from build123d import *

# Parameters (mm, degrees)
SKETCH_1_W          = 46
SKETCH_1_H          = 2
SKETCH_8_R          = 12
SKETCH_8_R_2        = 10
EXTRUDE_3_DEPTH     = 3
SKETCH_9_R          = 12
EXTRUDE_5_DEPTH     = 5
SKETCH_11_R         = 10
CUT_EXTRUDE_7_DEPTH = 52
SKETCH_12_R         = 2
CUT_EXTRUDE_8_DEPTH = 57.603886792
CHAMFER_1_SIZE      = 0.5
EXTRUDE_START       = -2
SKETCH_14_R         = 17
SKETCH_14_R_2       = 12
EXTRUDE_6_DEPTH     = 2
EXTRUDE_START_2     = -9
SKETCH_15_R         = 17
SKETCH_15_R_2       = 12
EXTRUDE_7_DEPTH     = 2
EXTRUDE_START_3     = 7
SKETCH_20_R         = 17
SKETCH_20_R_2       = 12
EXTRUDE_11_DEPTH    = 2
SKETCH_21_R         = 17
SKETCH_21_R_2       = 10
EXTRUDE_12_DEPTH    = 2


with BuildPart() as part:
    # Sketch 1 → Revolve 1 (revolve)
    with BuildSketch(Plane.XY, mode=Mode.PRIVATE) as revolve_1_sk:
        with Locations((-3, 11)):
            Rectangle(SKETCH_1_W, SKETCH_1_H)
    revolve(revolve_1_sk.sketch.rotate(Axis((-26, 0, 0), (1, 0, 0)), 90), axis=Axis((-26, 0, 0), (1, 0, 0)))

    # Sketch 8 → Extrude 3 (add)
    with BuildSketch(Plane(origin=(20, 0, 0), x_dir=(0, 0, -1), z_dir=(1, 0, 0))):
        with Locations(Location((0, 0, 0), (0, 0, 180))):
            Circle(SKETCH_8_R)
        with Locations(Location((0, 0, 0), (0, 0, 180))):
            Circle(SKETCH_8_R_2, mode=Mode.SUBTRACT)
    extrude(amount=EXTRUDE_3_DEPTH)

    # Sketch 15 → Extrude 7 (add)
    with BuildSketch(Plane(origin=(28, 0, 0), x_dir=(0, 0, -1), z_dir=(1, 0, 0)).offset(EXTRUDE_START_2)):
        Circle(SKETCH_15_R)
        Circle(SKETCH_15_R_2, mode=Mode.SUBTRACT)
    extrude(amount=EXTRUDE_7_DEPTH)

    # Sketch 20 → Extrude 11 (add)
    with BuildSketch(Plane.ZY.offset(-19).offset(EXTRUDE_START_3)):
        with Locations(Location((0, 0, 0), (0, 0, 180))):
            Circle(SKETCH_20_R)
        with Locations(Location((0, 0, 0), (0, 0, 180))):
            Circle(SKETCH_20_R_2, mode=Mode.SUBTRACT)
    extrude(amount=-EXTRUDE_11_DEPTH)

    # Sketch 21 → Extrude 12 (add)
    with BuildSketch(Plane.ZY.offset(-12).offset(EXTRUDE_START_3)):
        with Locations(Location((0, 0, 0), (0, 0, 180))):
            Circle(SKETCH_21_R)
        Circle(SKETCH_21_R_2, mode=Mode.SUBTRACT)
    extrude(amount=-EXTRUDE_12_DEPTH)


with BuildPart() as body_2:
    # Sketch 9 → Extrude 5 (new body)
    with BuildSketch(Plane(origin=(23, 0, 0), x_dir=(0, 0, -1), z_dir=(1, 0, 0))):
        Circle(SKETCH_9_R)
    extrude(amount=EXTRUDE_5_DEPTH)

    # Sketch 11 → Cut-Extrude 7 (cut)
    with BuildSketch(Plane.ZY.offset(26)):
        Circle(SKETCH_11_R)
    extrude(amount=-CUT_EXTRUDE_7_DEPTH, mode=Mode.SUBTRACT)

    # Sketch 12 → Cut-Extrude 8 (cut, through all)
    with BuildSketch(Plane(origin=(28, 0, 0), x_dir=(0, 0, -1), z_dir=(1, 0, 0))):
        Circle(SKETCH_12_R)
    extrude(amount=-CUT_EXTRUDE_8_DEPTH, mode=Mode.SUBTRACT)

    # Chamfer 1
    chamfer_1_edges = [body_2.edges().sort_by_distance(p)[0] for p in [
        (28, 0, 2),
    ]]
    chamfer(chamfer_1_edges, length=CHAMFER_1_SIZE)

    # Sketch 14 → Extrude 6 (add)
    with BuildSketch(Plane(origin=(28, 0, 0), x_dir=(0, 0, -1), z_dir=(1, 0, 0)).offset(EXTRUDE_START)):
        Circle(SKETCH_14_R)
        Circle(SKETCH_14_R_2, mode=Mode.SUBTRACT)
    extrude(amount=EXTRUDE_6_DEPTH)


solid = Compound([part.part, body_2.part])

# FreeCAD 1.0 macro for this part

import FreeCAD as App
import Part
import Sketcher

V = App.Vector


def edges_at(feature, points):
    """Names of the edges that pass closest to the given points."""
    edges = feature.Shape.Edges
    near = lambda p: min(range(len(edges)), key=lambda i: edges[i].distToShape(Part.Vertex(*p))[0])
    return sorted({f"Edge{near(p) + 1}" for p in points})

doc = App.newDocument("Part")
body = doc.addObject("PartDesign::Body", "Body")

sketch1 = body.newObject("Sketcher::SketchObject", "Sketch")
sketch1.AttachmentSupport = (doc.getObject("XY_Plane"), [""])
sketch1.MapMode = "FlatFace"
sketch1.addGeometry([
    Part.LineSegment(V(-26, 12, 0), V(-26, 10, 0)),
    Part.LineSegment(V(-26, 10, 0), V(20, 10, 0)),
    Part.LineSegment(V(20, 10, 0), V(20, 12, 0)),
    Part.LineSegment(V(20, 12, 0), V(-26, 12, 0)),
], False)
sketch1.addConstraint([
    Sketcher.Constraint("Coincident", 0, 2, 1, 1),
    Sketcher.Constraint("Coincident", 1, 2, 2, 1),
    Sketcher.Constraint("Coincident", 2, 2, 3, 1),
    Sketcher.Constraint("Coincident", 3, 2, 0, 1),
    Sketcher.Constraint("Vertical", 0),
    Sketcher.Constraint("Horizontal", 1),
    Sketcher.Constraint("Vertical", 2),
    Sketcher.Constraint("Horizontal", 3),
    Sketcher.Constraint("DistanceX", 1, 1, 1, 2, 46.0),
    Sketcher.Constraint("DistanceY", 0, 2, 0, 1, 2.0),
    Sketcher.Constraint("DistanceX", 0, 2, -1, 1, 26.0),
    Sketcher.Constraint("DistanceY", -1, 1, 0, 2, 10.0),
])
revolution = body.newObject("PartDesign::Revolution", "Revolution")
revolution.Profile = sketch1
revolution.ReferenceAxis = (sketch1, ["H_Axis"])
revolution.Angle = 360

sketch2 = body.newObject("Sketcher::SketchObject", "Sketch001")
sketch2.AttachmentSupport = (doc.getObject("YZ_Plane"), [""])
sketch2.MapMode = "FlatFace"
sketch2.AttachmentOffset = App.Placement(V(0, 0, 20), App.Rotation())
sketch2.addGeometry([
    Part.Circle(V(0, 0, 0), V(0, 0, 1), 12),
    Part.Circle(V(0, 0, 0), V(0, 0, 1), 10),
], False)
sketch2.addConstraint([
    Sketcher.Constraint("Coincident", 0, 3, -1, 1),
    Sketcher.Constraint("Coincident", 1, 3, -1, 1),
    Sketcher.Constraint("Diameter", 0, 24.0),
    Sketcher.Constraint("Diameter", 1, 20.0),
])
pad1 = body.newObject("PartDesign::Pad", "Pad")
pad1.Profile = sketch2
pad1.Length = 3

sketch3 = body.newObject("Sketcher::SketchObject", "Sketch002")
sketch3.AttachmentSupport = (doc.getObject("YZ_Plane"), [""])
sketch3.MapMode = "FlatFace"
sketch3.AttachmentOffset = App.Placement(V(0, 0, 19), App.Rotation())
sketch3.addGeometry([
    Part.Circle(V(0, 0, 0), V(0, 0, 1), 17),
    Part.Circle(V(0, 0, 0), V(0, 0, 1), 12),
], False)
sketch3.addConstraint([
    Sketcher.Constraint("Coincident", 0, 3, -1, 1),
    Sketcher.Constraint("Coincident", 1, 3, -1, 1),
    Sketcher.Constraint("Diameter", 0, 34.0),
    Sketcher.Constraint("Diameter", 1, 24.0),
])
pad2 = body.newObject("PartDesign::Pad", "Pad001")
pad2.Profile = sketch3
pad2.Length = 2

sketch4 = body.newObject("Sketcher::SketchObject", "Sketch003")
sketch4.AttachmentSupport = (doc.getObject("YZ_Plane"), [""])
sketch4.MapMode = "FlatFace"
sketch4.AttachmentOffset = App.Placement(V(0, 0, 12), App.Rotation())
sketch4.addGeometry([
    Part.Circle(V(0, 0, 0), V(0, 0, 1), 17),
    Part.Circle(V(0, 0, 0), V(0, 0, 1), 12),
], False)
sketch4.addConstraint([
    Sketcher.Constraint("Coincident", 0, 3, -1, 1),
    Sketcher.Constraint("Coincident", 1, 3, -1, 1),
    Sketcher.Constraint("Diameter", 0, 34.0),
    Sketcher.Constraint("Diameter", 1, 24.0),
])
pad3 = body.newObject("PartDesign::Pad", "Pad002")
pad3.Profile = sketch4
pad3.Length = 2

sketch5 = body.newObject("Sketcher::SketchObject", "Sketch004")
sketch5.AttachmentSupport = (doc.getObject("YZ_Plane"), [""])
sketch5.MapMode = "FlatFace"
sketch5.AttachmentOffset = App.Placement(V(0, 0, 5), App.Rotation())
sketch5.addGeometry([
    Part.Circle(V(0, 0, 0), V(0, 0, 1), 17),
    Part.Circle(V(0, 0, 0), V(0, 0, 1), 10),
], False)
sketch5.addConstraint([
    Sketcher.Constraint("Coincident", 0, 3, -1, 1),
    Sketcher.Constraint("Coincident", 1, 3, -1, 1),
    Sketcher.Constraint("Diameter", 0, 34.0),
    Sketcher.Constraint("Diameter", 1, 20.0),
])
pad4 = body.newObject("PartDesign::Pad", "Pad003")
pad4.Profile = sketch5
pad4.Length = 2
body2 = doc.addObject("PartDesign::Body", "Body001")

sketch6 = body2.newObject("Sketcher::SketchObject", "Sketch005")
sketch6.AttachmentSupport = (doc.getObject("YZ_Plane001"), [""])
sketch6.MapMode = "FlatFace"
sketch6.AttachmentOffset = App.Placement(V(0, 0, 23), App.Rotation())
sketch6.addGeometry(Part.Circle(V(0, 0, 0), V(0, 0, 1), 12), False)
sketch6.addConstraint([
    Sketcher.Constraint("Coincident", 0, 3, -1, 1),
    Sketcher.Constraint("Diameter", 0, 24.0),
])
pad5 = body2.newObject("PartDesign::Pad", "Pad004")
pad5.Profile = sketch6
pad5.Length = 5

sketch7 = body2.newObject("Sketcher::SketchObject", "Sketch006")
sketch7.AttachmentSupport = (doc.getObject("YZ_Plane001"), [""])
sketch7.MapMode = "FlatFace"
sketch7.AttachmentOffset = App.Placement(V(0, 0, -26), App.Rotation())
sketch7.addGeometry(Part.Circle(V(0, 0, 0), V(0, 0, 1), 10), False)
sketch7.addConstraint([
    Sketcher.Constraint("Coincident", 0, 3, -1, 1),
    Sketcher.Constraint("Diameter", 0, 20.0),
])
pocket1 = body2.newObject("PartDesign::Pocket", "Pocket")
pocket1.Profile = sketch7
pocket1.Length = 52
pocket1.Reversed = True

sketch8 = body2.newObject("Sketcher::SketchObject", "Sketch007")
sketch8.AttachmentSupport = (doc.getObject("YZ_Plane001"), [""])
sketch8.MapMode = "FlatFace"
sketch8.AttachmentOffset = App.Placement(V(0, 0, 28), App.Rotation())
sketch8.addGeometry(Part.Circle(V(0, 0, 0), V(0, 0, 1), 2), False)
sketch8.addConstraint([
    Sketcher.Constraint("Coincident", 0, 3, -1, 1),
    Sketcher.Constraint("Diameter", 0, 4.0),
])
pocket2 = body2.newObject("PartDesign::Pocket", "Pocket001")
pocket2.Profile = sketch8
pocket2.Type = "ThroughAll"
doc.recompute()

chamfer = body2.newObject("PartDesign::Chamfer", "Chamfer")
chamfer.Base = (pocket2, edges_at(pocket2, [(28, 0, 2)]))
chamfer.Size = 0.5

sketch9 = body2.newObject("Sketcher::SketchObject", "Sketch008")
sketch9.AttachmentSupport = (doc.getObject("YZ_Plane001"), [""])
sketch9.MapMode = "FlatFace"
sketch9.AttachmentOffset = App.Placement(V(0, 0, 26), App.Rotation())
sketch9.addGeometry([
    Part.Circle(V(0, 0, 0), V(0, 0, 1), 17),
    Part.Circle(V(0, 0, 0), V(0, 0, 1), 12),
], False)
sketch9.addConstraint([
    Sketcher.Constraint("Coincident", 0, 3, -1, 1),
    Sketcher.Constraint("Coincident", 1, 3, -1, 1),
    Sketcher.Constraint("Diameter", 0, 34.0),
    Sketcher.Constraint("Diameter", 1, 24.0),
])
pad6 = body2.newObject("PartDesign::Pad", "Pad005")
pad6.Profile = sketch9
pad6.Length = 2

doc.recompute()
